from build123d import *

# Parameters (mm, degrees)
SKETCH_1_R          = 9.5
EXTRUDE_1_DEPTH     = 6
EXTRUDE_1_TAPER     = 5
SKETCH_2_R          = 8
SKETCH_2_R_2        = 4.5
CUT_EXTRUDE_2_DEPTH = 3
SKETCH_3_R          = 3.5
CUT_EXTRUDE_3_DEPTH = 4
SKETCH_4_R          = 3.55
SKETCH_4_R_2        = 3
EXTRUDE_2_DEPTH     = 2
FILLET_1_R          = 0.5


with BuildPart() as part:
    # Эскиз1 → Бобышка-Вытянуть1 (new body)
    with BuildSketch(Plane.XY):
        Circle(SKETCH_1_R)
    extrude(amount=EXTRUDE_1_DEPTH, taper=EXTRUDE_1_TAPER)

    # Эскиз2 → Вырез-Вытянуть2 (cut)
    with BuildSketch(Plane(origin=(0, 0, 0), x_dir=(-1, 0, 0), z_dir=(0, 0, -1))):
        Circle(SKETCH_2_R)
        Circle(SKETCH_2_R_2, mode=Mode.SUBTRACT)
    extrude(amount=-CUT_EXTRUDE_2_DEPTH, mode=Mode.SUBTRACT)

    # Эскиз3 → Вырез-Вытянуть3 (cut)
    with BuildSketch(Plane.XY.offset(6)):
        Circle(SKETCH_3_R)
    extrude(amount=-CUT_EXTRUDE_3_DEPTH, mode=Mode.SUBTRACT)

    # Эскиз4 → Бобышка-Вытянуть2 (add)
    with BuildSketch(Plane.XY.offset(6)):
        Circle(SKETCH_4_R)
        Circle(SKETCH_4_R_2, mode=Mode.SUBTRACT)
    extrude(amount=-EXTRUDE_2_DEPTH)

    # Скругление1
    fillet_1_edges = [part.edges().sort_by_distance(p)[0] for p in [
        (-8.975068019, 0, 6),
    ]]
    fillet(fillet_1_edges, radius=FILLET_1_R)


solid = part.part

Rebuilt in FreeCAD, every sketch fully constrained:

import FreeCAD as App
import Part
import Sketcher
from FreeCAD import Vector
Q = App.Units.Quantity


def edges_at(feature, points):
    """Names of the edges that pass closest to the given points."""
    edges = feature.Shape.Edges
    near = lambda p: min(range(len(edges)), key=lambda i: edges[i].distToShape(Part.Vertex(*p))[0])
    return sorted({f"Edge{near(p) + 1}" for p in points})

doc = App.newDocument("Part")
body = doc.addObject("PartDesign::Body", "Body")

sketch1 = doc.addObject("Sketcher::SketchObject", "Sketch")
body.addObject(sketch1)
sketch1.AttachmentSupport = (doc.XY_Plane, [""])
sketch1.MapMode = "FlatFace"
sketch1.addGeometry(Part.Circle(Vector(0, 0, 0), Vector(0, 0, 1), 9.5), False)
sketch1.addConstraint(Sketcher.Constraint("Coincident", 0, 3, -1, 1))
sketch1.addConstraint(Sketcher.Constraint("Diameter", 0, Q("19 mm")))
pad1 = doc.addObject("PartDesign::Pad", "Pad")
body.addObject(pad1)
pad1.Profile = sketch1
pad1.Length = 6
pad1.TaperAngle = -5

sketch2 = doc.addObject("Sketcher::SketchObject", "Sketch001")
body.addObject(sketch2)
sketch2.AttachmentSupport = (doc.XY_Plane, [""])
sketch2.MapMode = "FlatFace"
sketch2.addGeometry(Part.Circle(Vector(0, 0, 0), Vector(0, 0, 1), 8), False)
sketch2.addGeometry(Part.Circle(Vector(0, 0, 0), Vector(0, 0, 1), 4.5), False)
sketch2.addConstraint(Sketcher.Constraint("Coincident", 0, 3, -1, 1))
sketch2.addConstraint(Sketcher.Constraint("Coincident", 1, 3, -1, 1))
sketch2.addConstraint(Sketcher.Constraint("Diameter", 0, Q("16 mm")))
sketch2.addConstraint(Sketcher.Constraint("Diameter", 1, Q("9 mm")))
pocket1 = doc.addObject("PartDesign::Pocket", "Pocket")
body.addObject(pocket1)
pocket1.Profile = sketch2
pocket1.Length = 3
pocket1.Reversed = True

sketch3 = doc.addObject("Sketcher::SketchObject", "Sketch002")
body.addObject(sketch3)
sketch3.AttachmentSupport = (doc.XY_Plane, [""])
sketch3.MapMode = "FlatFace"
sketch3.AttachmentOffset = App.Placement(Vector(0, 0, 6), App.Rotation())
sketch3.addGeometry(Part.Circle(Vector(0, 0, 0), Vector(0, 0, 1), 3.5), False)
sketch3.addConstraint(Sketcher.Constraint("Coincident", 0, 3, -1, 1))
sketch3.addConstraint(Sketcher.Constraint("Diameter", 0, Q("7 mm")))
pocket2 = doc.addObject("PartDesign::Pocket", "Pocket001")
body.addObject(pocket2)
pocket2.Profile = sketch3
pocket2.Length = 4

sketch4 = doc.addObject("Sketcher::SketchObject", "Sketch003")
body.addObject(sketch4)
sketch4.AttachmentSupport = (doc.XY_Plane, [""])
sketch4.MapMode = "FlatFace"
sketch4.AttachmentOffset = App.Placement(Vector(0, 0, 6), App.Rotation())
sketch4.addGeometry(Part.Circle(Vector(0, 0, 0), Vector(0, 0, 1), 3.55), False)
sketch4.addGeometry(Part.Circle(Vector(0, 0, 0), Vector(0, 0, 1), 3), False)
sketch4.addConstraint(Sketcher.Constraint("Coincident", 0, 3, -1, 1))
sketch4.addConstraint(Sketcher.Constraint("Coincident", 1, 3, -1, 1))
sketch4.addConstraint(Sketcher.Constraint("Diameter", 1, Q("6 mm")))
sketch4.addConstraint(Sketcher.Constraint("Diameter", 0, Q("7.1 mm")))
pad2 = doc.addObject("PartDesign::Pad", "Pad001")
body.addObject(pad2)
pad2.Profile = sketch4
pad2.Length = 2
pad2.Reversed = True
doc.recompute()

fillet = doc.addObject("PartDesign::Fillet", "Fillet")
body.addObject(fillet)
fillet.Base = (pad2, edges_at(pad2, [(-8.975, 0, 6)]))
fillet.Radius = 0.5

doc.recompute()
